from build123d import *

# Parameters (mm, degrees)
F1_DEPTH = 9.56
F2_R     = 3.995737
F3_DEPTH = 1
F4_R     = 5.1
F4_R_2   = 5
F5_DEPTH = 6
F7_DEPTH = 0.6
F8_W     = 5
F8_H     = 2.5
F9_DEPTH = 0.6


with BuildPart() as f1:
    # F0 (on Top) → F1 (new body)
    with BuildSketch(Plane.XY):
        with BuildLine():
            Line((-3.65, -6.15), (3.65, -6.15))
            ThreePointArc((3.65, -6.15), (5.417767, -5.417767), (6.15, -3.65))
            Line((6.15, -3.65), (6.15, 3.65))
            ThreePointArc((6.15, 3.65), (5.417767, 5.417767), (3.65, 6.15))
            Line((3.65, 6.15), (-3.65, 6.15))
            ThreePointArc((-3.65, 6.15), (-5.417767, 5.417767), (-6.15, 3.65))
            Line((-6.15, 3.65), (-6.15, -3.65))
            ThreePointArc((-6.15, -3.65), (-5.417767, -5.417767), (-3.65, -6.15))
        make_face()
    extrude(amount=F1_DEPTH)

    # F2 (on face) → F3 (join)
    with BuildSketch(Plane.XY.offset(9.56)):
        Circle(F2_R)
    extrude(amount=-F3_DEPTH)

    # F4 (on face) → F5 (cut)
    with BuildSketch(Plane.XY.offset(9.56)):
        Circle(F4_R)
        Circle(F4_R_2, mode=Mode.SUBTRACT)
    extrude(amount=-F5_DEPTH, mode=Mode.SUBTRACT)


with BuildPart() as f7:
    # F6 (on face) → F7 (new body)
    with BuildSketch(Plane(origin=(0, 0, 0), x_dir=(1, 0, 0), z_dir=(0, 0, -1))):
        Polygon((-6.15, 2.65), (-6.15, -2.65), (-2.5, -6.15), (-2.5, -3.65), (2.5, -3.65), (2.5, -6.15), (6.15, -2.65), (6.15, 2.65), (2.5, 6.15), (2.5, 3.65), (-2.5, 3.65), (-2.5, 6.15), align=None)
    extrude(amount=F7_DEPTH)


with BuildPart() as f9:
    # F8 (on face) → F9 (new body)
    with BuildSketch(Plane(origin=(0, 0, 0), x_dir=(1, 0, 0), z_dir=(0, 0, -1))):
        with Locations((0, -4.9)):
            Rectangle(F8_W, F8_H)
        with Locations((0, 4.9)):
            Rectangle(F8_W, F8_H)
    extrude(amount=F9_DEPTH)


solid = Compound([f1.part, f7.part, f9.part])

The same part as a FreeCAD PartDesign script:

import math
import FreeCAD as App
import Part
import Sketcher
from FreeCAD import Vector
Q = App.Units.Quantity

doc = App.newDocument("Part")
body = doc.addObject("PartDesign::Body", "Body")

sketch1 = doc.addObject("Sketcher::SketchObject", "Sketch")
body.addObject(sketch1)
sketch1.AttachmentSupport = (doc.XY_Plane, [""])
sketch1.MapMode = "FlatFace"
sketch1.addGeometry([
    Part.LineSegment(Vector(-3.65, -6.15, 0), Vector(3.65, -6.15, 0)),
    Part.ArcOfCircle(Part.Circle(Vector(3.65, -3.65, 0), Vector(0, 0, 1), 2.5), math.radians(-90.000004), math.radians(0.000004)),
    Part.LineSegment(Vector(6.15, -3.65, 0), Vector(6.15, 3.65, 0)),
    Part.ArcOfCircle(Part.Circle(Vector(3.65, 3.65, 0), Vector(0, 0, 1), 2.5), math.radians(-0.000004), math.radians(90.000004)),
    Part.LineSegment(Vector(3.65, 6.15, 0), Vector(-3.65, 6.15, 0)),
    Part.ArcOfCircle(Part.Circle(Vector(-3.65, 3.65, 0), Vector(0, 0, 1), 2.5), math.radians(89.999996), math.radians(180.000004)),
    Part.LineSegment(Vector(-6.15, 3.65, 0), Vector(-6.15, -3.65, 0)),
    Part.ArcOfCircle(Part.Circle(Vector(-3.65, -3.65, 0), Vector(0, 0, 1), 2.5), math.radians(179.999996), math.radians(270.000004)),
], False)
sketch1.addConstraint([
    Sketcher.Constraint("Tangent", 0, 2, 1, 1),
    Sketcher.Constraint("Tangent", 1, 2, 2, 1),
    Sketcher.Constraint("Tangent", 2, 2, 3, 1),
    Sketcher.Constraint("Tangent", 3, 2, 4, 1),
    Sketcher.Constraint("Tangent", 4, 2, 5, 1),
    Sketcher.Constraint("Tangent", 5, 2, 6, 1),
    Sketcher.Constraint("Tangent", 6, 2, 7, 1),
    Sketcher.Constraint("Tangent", 7, 2, 0, 1),
    Sketcher.Constraint("Horizontal", 0),
    Sketcher.Constraint("Vertical", 2),
    Sketcher.Constraint("Horizontal", 4),
    Sketcher.Constraint("Vertical", 6),
    Sketcher.Constraint("Equal", 1, 3),
    Sketcher.Constraint("Equal", 3, 5),
    Sketcher.Constraint("Equal", 5, 7),
    Sketcher.Constraint("Symmetric", 1, 3, 5, 3, -1, 1),
    Sketcher.Constraint("Equal", 4, 2),
    Sketcher.Constraint("Radius", 1, Q("2.5 mm")),
    Sketcher.Constraint("DistanceX", 0, 1, 0, 2, Q("7.3 mm")),
])
pad1 = doc.addObject("PartDesign::Pad", "Pad")
body.addObject(pad1)
pad1.Profile = sketch1
pad1.Length = 9.56

sketch2 = doc.addObject("Sketcher::SketchObject", "Sketch001")
body.addObject(sketch2)
sketch2.AttachmentSupport = (doc.XY_Plane, [""])
sketch2.MapMode = "FlatFace"
sketch2.AttachmentOffset = App.Placement(Vector(0, 0, 9.56), App.Rotation())
sketch2.addGeometry(Part.Circle(Vector(0, 0, 0), Vector(0, 0, 1), 3.995737), False)
sketch2.addConstraint([
    Sketcher.Constraint("Coincident", 0, 3, -1, 1),
    Sketcher.Constraint("Diameter", 0, Q("7.991474 mm")),
])
pad2 = doc.addObject("PartDesign::Pad", "Pad001")
body.addObject(pad2)
pad2.Profile = sketch2
pad2.Length = 1
pad2.Reversed = True

sketch3 = doc.addObject("Sketcher::SketchObject", "Sketch002")
body.addObject(sketch3)
sketch3.AttachmentSupport = (doc.XY_Plane, [""])
sketch3.MapMode = "FlatFace"
sketch3.AttachmentOffset = App.Placement(Vector(0, 0, 9.56), App.Rotation())
sketch3.addGeometry([
    Part.Circle(Vector(0, 0, 0), Vector(0, 0, 1), 5.1),
    Part.Circle(Vector(0, 0, 0), Vector(0, 0, 1), 5),
], False)
sketch3.addConstraint([
    Sketcher.Constraint("Coincident", 0, 3, -1, 1),
    Sketcher.Constraint("Coincident", 1, 3, -1, 1),
    Sketcher.Constraint("Diameter", 1, Q("10 mm")),
    Sketcher.Constraint("Diameter", 0, Q("10.2 mm")),
])
pocket1 = doc.addObject("PartDesign::Pocket", "Pocket")
body.addObject(pocket1)
pocket1.Profile = sketch3
pocket1.Length = 6
body2 = doc.addObject("PartDesign::Body", "Body001")

sketch4 = doc.addObject("Sketcher::SketchObject", "Sketch003")
body2.addObject(sketch4)
sketch4.AttachmentSupport = (doc.getObject("XY_Plane001"), [""])
sketch4.MapMode = "FlatFace"
sketch4.addGeometry([
    Part.LineSegment(Vector(-6.15, -2.65, 0), Vector(-6.15, 2.65, 0)),
    Part.LineSegment(Vector(-6.15, 2.65, 0), Vector(-2.5, 6.15, 0)),
    Part.LineSegment(Vector(-2.5, 6.15, 0), Vector(-2.5, 3.65, 0)),
    Part.LineSegment(Vector(-2.5, 3.65, 0), Vector(2.5, 3.65, 0)),
    Part.LineSegment(Vector(2.5, 3.65, 0), Vector(2.5, 6.15, 0)),
    Part.LineSegment(Vector(2.5, 6.15, 0), Vector(6.15, 2.65, 0)),
    Part.LineSegment(Vector(6.15, 2.65, 0), Vector(6.15, -2.65, 0)),
    Part.LineSegment(Vector(6.15, -2.65, 0), Vector(2.5, -6.15, 0)),
    Part.LineSegment(Vector(2.5, -6.15, 0), Vector(2.5, -3.65, 0)),
    Part.LineSegment(Vector(2.5, -3.65, 0), Vector(-2.5, -3.65, 0)),
    Part.LineSegment(Vector(-2.5, -3.65, 0), Vector(-2.5, -6.15, 0)),
    Part.LineSegment(Vector(-2.5, -6.15, 0), Vector(-6.15, -2.65, 0)),
], False)
sketch4.addConstraint([
    Sketcher.Constraint("Coincident", 0, 2, 1, 1),
    Sketcher.Constraint("Coincident", 1, 2, 2, 1),
    Sketcher.Constraint("Coincident", 2, 2, 3, 1),
    Sketcher.Constraint("Coincident", 3, 2, 4, 1),
    Sketcher.Constraint("Coincident", 4, 2, 5, 1),
    Sketcher.Constraint("Coincident", 5, 2, 6, 1),
    Sketcher.Constraint("Coincident", 6, 2, 7, 1),
    Sketcher.Constraint("Coincident", 7, 2, 8, 1),
    Sketcher.Constraint("Coincident", 8, 2, 9, 1),
    Sketcher.Constraint("Coincident", 9, 2, 10, 1),
    Sketcher.Constraint("Coincident", 10, 2, 11, 1),
    Sketcher.Constraint("Coincident", 11, 2, 0, 1),
    Sketcher.Constraint("Vertical", 0),
    Sketcher.Constraint("Vertical", 2),
    Sketcher.Constraint("Horizontal", 3),
    Sketcher.Constraint("Vertical", 4),
    Sketcher.Constraint("Vertical", 6),
    Sketcher.Constraint("Vertical", 8),
    Sketcher.Constraint("Horizontal", 9),
    Sketcher.Constraint("Vertical", 10),
    Sketcher.Constraint("Symmetric", 0, 2, 6, 2, -1, 1),
    Sketcher.Constraint("Symmetric", 1, 2, 7, 2, -1, 1),
    Sketcher.Constraint("Symmetric", 3, 2, 9, 2, -1, 1),
    Sketcher.Constraint("Symmetric", 1, 2, 4, 2, -2),
    Sketcher.Constraint("Parallel", 5, 11),
    Sketcher.Constraint("Horizontal", 0, 2, 5, 2),
    Sketcher.Constraint("Horizontal", 7, 2, 10, 2),
    Sketcher.Constraint("DistanceX", 3, 1, 3, 2, Q("5 mm")),
    Sketcher.Constraint("DistanceY", 0, 1, 0, 2, Q("5.3 mm")),
    Sketcher.Constraint("DistanceY", 2, 2, 2, 1, Q("2.5 mm")),
    Sketcher.Constraint("DistanceY", 0, 2, 2, 2, Q("1 mm")),
    Sketcher.Constraint("DistanceX", 0, 2, 5, 2, Q("12.3 mm")),
])
pad3 = doc.addObject("PartDesign::Pad", "Pad002")
body2.addObject(pad3)
pad3.Profile = sketch4
pad3.Length = 0.6
pad3.Reversed = True
body3 = doc.addObject("PartDesign::Body", "Body002")
body3.AllowCompound = True

sketch5 = doc.addObject("Sketcher::SketchObject", "Sketch004")
body3.addObject(sketch5)
sketch5.AttachmentSupport = (doc.getObject("XY_Plane002"), [""])
sketch5.MapMode = "FlatFace"
sketch5.addGeometry([
    Part.LineSegment(Vector(-2.5, 3.65, 0), Vector(-2.5, 6.15, 0)),
    Part.LineSegment(Vector(-2.5, 6.15, 0), Vector(2.5, 6.15, 0)),
    Part.LineSegment(Vector(2.5, 6.15, 0), Vector(2.5, 3.65, 0)),
    Part.LineSegment(Vector(2.5, 3.65, 0), Vector(-2.5, 3.65, 0)),
    Part.LineSegment(Vector(-2.5, -6.15, 0), Vector(-2.5, -3.65, 0)),
    Part.LineSegment(Vector(-2.5, -3.65, 0), Vector(2.5, -3.65, 0)),
    Part.LineSegment(Vector(2.5, -3.65, 0), Vector(2.5, -6.15, 0)),
    Part.LineSegment(Vector(2.5, -6.15, 0), Vector(-2.5, -6.15, 0)),
], False)
sketch5.addConstraint([
    Sketcher.Constraint("Coincident", 0, 2, 1, 1),
    Sketcher.Constraint("Coincident", 1, 2, 2, 1),
    Sketcher.Constraint("Coincident", 2, 2, 3, 1),
    Sketcher.Constraint("Coincident", 3, 2, 0, 1),
    Sketcher.Constraint("Coincident", 4, 2, 5, 1),
    Sketcher.Constraint("Coincident", 5, 2, 6, 1),
    Sketcher.Constraint("Coincident", 6, 2, 7, 1),
    Sketcher.Constraint("Coincident", 7, 2, 4, 1),
    Sketcher.Constraint("Vertical", 0),
    Sketcher.Constraint("Horizontal", 1),
    Sketcher.Constraint("Vertical", 2),
    Sketcher.Constraint("Horizontal", 3),
    Sketcher.Constraint("Vertical", 4),
    Sketcher.Constraint("Horizontal", 5),
    Sketcher.Constraint("Vertical", 6),
    Sketcher.Constraint("Horizontal", 7),
    Sketcher.Constraint("Symmetric", 2, 2, 4, 2, -1, 1),
    Sketcher.Constraint("Symmetric", 0, 2, 6, 2, -1, 1),
    Sketcher.Constraint("Vertical", 3, 2, 4, 2),
    Sketcher.Constraint("DistanceX", 1, 1, 1, 2, Q("5 mm")),
    Sketcher.Constraint("DistanceY", 0, 1, 0, 2, Q("2.5 mm")),
    Sketcher.Constraint("DistanceY", 4, 2, 3, 2, Q("7.3 mm")),
])
pad4 = doc.addObject("PartDesign::Pad", "Pad003")
body3.addObject(pad4)
pad4.Profile = sketch5
pad4.Length = 0.6
pad4.Reversed = True

doc.recompute()
